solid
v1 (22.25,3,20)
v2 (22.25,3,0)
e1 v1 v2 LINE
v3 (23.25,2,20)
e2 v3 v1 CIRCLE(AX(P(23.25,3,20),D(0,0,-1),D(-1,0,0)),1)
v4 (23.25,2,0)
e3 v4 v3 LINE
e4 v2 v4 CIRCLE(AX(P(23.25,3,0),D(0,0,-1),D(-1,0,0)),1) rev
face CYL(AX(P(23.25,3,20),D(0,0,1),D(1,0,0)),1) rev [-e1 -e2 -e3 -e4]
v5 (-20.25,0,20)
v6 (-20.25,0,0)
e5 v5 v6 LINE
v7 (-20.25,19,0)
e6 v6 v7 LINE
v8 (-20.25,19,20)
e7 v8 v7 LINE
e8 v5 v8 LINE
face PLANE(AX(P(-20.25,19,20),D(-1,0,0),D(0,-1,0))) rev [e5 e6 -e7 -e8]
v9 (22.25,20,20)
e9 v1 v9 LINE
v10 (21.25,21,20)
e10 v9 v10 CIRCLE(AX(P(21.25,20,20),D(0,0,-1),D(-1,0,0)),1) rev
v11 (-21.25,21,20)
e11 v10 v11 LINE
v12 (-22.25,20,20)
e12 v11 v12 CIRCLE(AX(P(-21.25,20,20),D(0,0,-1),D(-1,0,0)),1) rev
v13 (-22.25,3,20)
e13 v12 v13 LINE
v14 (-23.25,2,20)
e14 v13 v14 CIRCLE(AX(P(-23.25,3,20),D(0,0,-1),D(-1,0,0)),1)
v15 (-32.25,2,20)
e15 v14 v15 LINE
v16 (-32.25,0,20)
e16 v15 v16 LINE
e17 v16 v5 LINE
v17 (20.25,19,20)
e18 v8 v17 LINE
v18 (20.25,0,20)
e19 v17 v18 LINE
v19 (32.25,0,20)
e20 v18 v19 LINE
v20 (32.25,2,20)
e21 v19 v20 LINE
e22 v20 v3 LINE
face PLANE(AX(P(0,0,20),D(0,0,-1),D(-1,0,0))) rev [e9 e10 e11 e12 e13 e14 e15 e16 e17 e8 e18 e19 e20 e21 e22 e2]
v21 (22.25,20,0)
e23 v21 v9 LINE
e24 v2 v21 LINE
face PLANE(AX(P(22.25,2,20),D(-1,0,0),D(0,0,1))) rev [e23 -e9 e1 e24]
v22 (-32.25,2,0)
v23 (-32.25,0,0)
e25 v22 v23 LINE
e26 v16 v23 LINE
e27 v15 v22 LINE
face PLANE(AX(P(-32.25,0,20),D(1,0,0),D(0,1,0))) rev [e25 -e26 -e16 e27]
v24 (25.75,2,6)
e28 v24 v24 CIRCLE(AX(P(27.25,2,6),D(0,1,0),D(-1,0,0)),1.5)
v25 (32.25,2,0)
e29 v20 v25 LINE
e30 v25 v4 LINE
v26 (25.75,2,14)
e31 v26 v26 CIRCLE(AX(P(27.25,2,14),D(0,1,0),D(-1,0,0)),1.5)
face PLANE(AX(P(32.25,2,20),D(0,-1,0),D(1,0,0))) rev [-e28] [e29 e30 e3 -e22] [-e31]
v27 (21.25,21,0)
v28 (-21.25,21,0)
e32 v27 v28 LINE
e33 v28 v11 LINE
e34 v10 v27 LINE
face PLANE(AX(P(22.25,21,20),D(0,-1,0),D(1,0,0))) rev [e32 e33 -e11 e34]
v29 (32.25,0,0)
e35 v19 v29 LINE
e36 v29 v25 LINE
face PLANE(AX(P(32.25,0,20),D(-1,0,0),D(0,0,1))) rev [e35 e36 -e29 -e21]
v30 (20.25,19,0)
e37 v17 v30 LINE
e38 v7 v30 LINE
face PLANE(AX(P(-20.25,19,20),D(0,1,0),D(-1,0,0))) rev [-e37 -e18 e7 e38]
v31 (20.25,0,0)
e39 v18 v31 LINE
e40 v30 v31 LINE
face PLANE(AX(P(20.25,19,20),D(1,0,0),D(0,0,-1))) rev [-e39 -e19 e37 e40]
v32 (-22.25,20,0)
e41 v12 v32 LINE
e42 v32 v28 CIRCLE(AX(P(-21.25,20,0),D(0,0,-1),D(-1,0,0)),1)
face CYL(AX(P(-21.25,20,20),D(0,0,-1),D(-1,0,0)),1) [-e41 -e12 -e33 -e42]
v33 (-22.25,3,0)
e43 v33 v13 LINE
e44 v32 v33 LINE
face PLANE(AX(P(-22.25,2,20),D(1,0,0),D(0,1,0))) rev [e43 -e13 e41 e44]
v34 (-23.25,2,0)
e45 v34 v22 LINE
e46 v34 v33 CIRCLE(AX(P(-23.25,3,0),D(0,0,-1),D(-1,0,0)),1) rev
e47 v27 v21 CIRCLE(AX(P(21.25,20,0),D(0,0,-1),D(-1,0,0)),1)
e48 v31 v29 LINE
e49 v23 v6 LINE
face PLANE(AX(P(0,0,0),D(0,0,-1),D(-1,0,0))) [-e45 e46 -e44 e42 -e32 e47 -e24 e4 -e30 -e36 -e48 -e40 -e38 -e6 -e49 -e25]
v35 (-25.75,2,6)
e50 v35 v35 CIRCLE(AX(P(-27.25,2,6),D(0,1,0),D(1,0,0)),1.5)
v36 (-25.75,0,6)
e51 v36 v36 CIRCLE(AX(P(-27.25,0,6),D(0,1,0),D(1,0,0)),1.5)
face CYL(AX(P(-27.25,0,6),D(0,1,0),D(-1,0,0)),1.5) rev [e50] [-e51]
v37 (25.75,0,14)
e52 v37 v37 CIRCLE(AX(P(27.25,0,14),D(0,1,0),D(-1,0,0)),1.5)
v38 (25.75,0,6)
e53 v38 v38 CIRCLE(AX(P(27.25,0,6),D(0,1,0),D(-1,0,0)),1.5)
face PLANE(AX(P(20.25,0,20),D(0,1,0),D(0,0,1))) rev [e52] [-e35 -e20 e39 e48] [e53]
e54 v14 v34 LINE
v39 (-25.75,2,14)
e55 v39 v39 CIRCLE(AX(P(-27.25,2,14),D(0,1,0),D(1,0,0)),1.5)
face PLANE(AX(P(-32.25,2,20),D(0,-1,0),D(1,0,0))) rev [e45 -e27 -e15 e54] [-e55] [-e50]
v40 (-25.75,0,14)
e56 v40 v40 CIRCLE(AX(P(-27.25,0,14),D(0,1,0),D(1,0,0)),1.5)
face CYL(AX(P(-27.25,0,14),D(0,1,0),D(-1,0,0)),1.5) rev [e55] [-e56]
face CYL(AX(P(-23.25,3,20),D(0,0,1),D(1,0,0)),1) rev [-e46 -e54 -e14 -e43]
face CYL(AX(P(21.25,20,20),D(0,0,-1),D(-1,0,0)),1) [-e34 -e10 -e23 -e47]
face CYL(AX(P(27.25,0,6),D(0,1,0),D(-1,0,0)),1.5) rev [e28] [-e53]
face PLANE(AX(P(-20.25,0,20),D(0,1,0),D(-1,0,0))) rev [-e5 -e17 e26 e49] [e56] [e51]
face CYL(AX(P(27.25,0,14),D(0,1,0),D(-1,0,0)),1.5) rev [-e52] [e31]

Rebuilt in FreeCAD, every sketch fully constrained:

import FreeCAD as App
import Part
import Sketcher
Q = App.Units.Quantity


def edges_at(feature, points):
    """Names of the edges that pass closest to the given points."""
    edges = feature.Shape.Edges
    near = lambda p: min(range(len(edges)), key=lambda i: edges[i].distToShape(Part.Vertex(*p))[0])
    return sorted({f"Edge{near(p) + 1}" for p in points})

doc = App.newDocument("Part")
body = doc.addObject("PartDesign::Body", "Body")

sketch1 = body.newObject("Sketcher::SketchObject", "Sketch")
sketch1.AttachmentSupport = (doc.getObject("XY_Plane"), [""])
sketch1.MapMode = "FlatFace"
sketch1.addGeometry([
    Part.LineSegment(App.Vector(-20.2, 19, 0), App.Vector(20.2, 19, 0)),
    Part.LineSegment(App.Vector(20.2, 19, 0), App.Vector(20.2, 0, 0)),
    Part.LineSegment(App.Vector(20.2, 0, 0), App.Vector(32.2, 0, 0)),
    Part.LineSegment(App.Vector(32.2, 0, 0), App.Vector(32.2, 2, 0)),
    Part.LineSegment(App.Vector(32.2, 2, 0), App.Vector(22.2, 2, 0)),
    Part.LineSegment(App.Vector(22.2, 2, 0), App.Vector(22.2, 21, 0)),
    Part.LineSegment(App.Vector(22.2, 21, 0), App.Vector(-22.2, 21, 0)),
    Part.LineSegment(App.Vector(-22.2, 21, 0), App.Vector(-22.2, 2, 0)),
    Part.LineSegment(App.Vector(-22.2, 2, 0), App.Vector(-32.2, 2, 0)),
    Part.LineSegment(App.Vector(-32.2, 2, 0), App.Vector(-32.2, 0, 0)),
    Part.LineSegment(App.Vector(-32.2, 0, 0), App.Vector(-20.2, 0, 0)),
    Part.LineSegment(App.Vector(-20.2, 0, 0), App.Vector(-20.2, 19, 0)),
], False)
sketch1.addConstraint([
    Sketcher.Constraint("Coincident", 0, 2, 1, 1),
    Sketcher.Constraint("Coincident", 1, 2, 2, 1),
    Sketcher.Constraint("Coincident", 2, 2, 3, 1),
    Sketcher.Constraint("Coincident", 3, 2, 4, 1),
    Sketcher.Constraint("Coincident", 4, 2, 5, 1),
    Sketcher.Constraint("Coincident", 5, 2, 6, 1),
    Sketcher.Constraint("Coincident", 6, 2, 7, 1),
    Sketcher.Constraint("Coincident", 7, 2, 8, 1),
    Sketcher.Constraint("Coincident", 8, 2, 9, 1),
    Sketcher.Constraint("Coincident", 9, 2, 10, 1),
    Sketcher.Constraint("Coincident", 10, 2, 11, 1),
    Sketcher.Constraint("Coincident", 11, 2, 0, 1),
    Sketcher.Constraint("Horizontal", 0),
    Sketcher.Constraint("Vertical", 1),
    Sketcher.Constraint("Horizontal", 2),
    Sketcher.Constraint("Vertical", 3),
    Sketcher.Constraint("Horizontal", 4),
    Sketcher.Constraint("Vertical", 5),
    Sketcher.Constraint("Horizontal", 6),
    Sketcher.Constraint("Vertical", 7),
    Sketcher.Constraint("Horizontal", 8),
    Sketcher.Constraint("Vertical", 9),
    Sketcher.Constraint("Horizontal", 10),
    Sketcher.Constraint("Vertical", 11),
    Sketcher.Constraint("Symmetric", 2, 2, 9, 2, -1, 1),
    Sketcher.Constraint("Symmetric", 4, 2, 7, 2, -2),
    Sketcher.Constraint("Symmetric", 1, 2, 10, 2, -2),
    Sketcher.Constraint("Equal", 1, 5),
    Sketcher.Constraint("DistanceX", 2, 1, 2, 2, Q("12 mm")),
    Sketcher.Constraint("DistanceX", 4, 2, 4, 1, Q("10 mm")),
    Sketcher.Constraint("DistanceY", 1, 2, 1, 1, Q("19 mm")),
    Sketcher.Constraint("DistanceY", 3, 1, 3, 2, Q("2 mm")),
    Sketcher.Constraint("DistanceX", 0, 1, 0, 2, Q("40.5 mm")),
])
pad1 = body.newObject("PartDesign::Pad", "Pad")
pad1.Profile = sketch1
pad1.Length = 20

sketch2 = body.newObject("Sketcher::SketchObject", "Sketch001")
sketch2.AttachmentSupport = (doc.getObject("XZ_Plane"), [""])
sketch2.MapMode = "FlatFace"
sketch2.AttachmentOffset = App.Placement(App.Vector(0, 0, -2), App.Rotation())
sketch2.addGeometry([
    Part.Circle(App.Vector(27.2, 6, 0), App.Vector(0, 0, 1), 1.5),
    Part.Circle(App.Vector(27.2, 14, 0), App.Vector(0, 0, 1), 1.5),
    Part.Circle(App.Vector(-27.2, 14, 0), App.Vector(0, 0, 1), 1.5),
    Part.Circle(App.Vector(-27.2, 6, 0), App.Vector(0, 0, 1), 1.5),
], False)
sketch2.addConstraint([
    Sketcher.Constraint("Equal", 0, 1),
    Sketcher.Constraint("Equal", 1, 2),
    Sketcher.Constraint("Equal", 2, 3),
    Sketcher.Constraint("Symmetric", 1, 3, 2, 3, -2),
    Sketcher.Constraint("Symmetric", 0, 3, 3, 3, -2),
    Sketcher.Constraint("Vertical", 0, 3, 1, 3),
    Sketcher.Constraint("Diameter", 0, Q("3 mm")),
    Sketcher.Constraint("DistanceY", -1, 1, 0, 3, Q("6 mm")),
    Sketcher.Constraint("DistanceY", -1, 1, 1, 3, Q("14 mm")),
    Sketcher.Constraint("DistanceX", 2, 3, 1, 3, Q("54.5 mm")),
])
pocket1 = body.newObject("PartDesign::Pocket", "Pocket")
pocket1.Profile = sketch2
pocket1.Type = "ThroughAll"
pocket1.Reversed = True
doc.recompute()

fillet = body.newObject("PartDesign::Fillet", "Fillet")
fillet.Base = (pocket1, edges_at(pocket1, [
    (-22.25, 2, 10),
    (-22.25, 21, 10),
    (22.25, 21, 10),
    (22.25, 2, 10),
]))
fillet.Radius = 1

doc.recompute()
